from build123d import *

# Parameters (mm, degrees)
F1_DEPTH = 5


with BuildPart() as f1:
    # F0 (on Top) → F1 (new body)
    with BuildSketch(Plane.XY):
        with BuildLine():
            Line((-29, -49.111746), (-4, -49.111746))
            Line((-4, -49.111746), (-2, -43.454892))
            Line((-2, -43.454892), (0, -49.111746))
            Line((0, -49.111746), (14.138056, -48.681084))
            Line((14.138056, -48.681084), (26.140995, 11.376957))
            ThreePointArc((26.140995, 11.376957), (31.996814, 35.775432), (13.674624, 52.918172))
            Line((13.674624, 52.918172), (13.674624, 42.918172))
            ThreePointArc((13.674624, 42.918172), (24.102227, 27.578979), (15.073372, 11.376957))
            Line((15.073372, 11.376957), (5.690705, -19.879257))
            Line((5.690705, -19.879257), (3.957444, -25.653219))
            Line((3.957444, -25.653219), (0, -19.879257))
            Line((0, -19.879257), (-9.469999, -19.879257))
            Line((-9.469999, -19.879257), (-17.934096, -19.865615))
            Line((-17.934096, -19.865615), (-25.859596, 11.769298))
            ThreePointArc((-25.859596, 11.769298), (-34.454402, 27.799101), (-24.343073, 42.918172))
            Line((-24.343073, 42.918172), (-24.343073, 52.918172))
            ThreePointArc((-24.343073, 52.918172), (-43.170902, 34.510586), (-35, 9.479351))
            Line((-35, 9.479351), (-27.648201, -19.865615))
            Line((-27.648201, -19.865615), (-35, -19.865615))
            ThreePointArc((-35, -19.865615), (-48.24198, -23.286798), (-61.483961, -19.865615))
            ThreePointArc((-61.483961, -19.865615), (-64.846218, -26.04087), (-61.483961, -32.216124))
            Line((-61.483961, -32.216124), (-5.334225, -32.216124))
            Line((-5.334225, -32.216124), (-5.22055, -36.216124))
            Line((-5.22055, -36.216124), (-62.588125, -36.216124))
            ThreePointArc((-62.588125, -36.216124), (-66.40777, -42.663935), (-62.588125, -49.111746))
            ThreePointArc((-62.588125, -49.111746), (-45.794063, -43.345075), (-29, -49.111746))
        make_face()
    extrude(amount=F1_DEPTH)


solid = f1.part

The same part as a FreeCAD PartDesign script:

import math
import FreeCAD as App
import Part
import Sketcher
from FreeCAD import Vector

doc = App.newDocument("Part")
body = doc.addObject("PartDesign::Body", "Body")

sketch1 = body.newObject("Sketcher::SketchObject", "Sketch")
sketch1.AttachmentSupport = (doc.getObject("XY_Plane"), [""])
sketch1.MapMode = "FlatFace"
sketch1.addGeometry(Part.LineSegment(Vector(-29, -49.111746, 0), Vector(-4, -49.111746, 0)), False)
sketch1.addGeometry(Part.LineSegment(Vector(-4, -49.111746, 0), Vector(-2, -43.454892, 0)), False)
sketch1.addGeometry(Part.LineSegment(Vector(-2, -43.454892, 0), Vector(0, -49.111746, 0)), False)
sketch1.addGeometry(Part.LineSegment(Vector(0, -49.111746, 0), Vector(14.138056, -48.681084, 0)), False)
sketch1.addGeometry(Part.LineSegment(Vector(14.138056, -48.681084, 0), Vector(26.140995, 11.376957, 0)), False)
sketch1.addGeometry(Part.ArcOfCircle(Part.Circle(Vector(8.108902, 28.606754, 0), Vector(0, 0, 1), 24.940375), math.radians(-43.696602), math.radians(77.10523)), False)
sketch1.addGeometry(Part.LineSegment(Vector(13.674624, 52.918172, 0), Vector(13.674624, 42.918172, 0)), False)
sketch1.addGeometry(Part.ArcOfCircle(Part.Circle(Vector(6.455104, 26.796388, 0), Vector(0, 0, 1), 17.664467), math.radians(-60.798191), math.radians(65.876618)), False)
sketch1.addGeometry(Part.LineSegment(Vector(15.073372, 11.376957, 0), Vector(5.690705, -19.879257, 0)), False)
sketch1.addGeometry(Part.LineSegment(Vector(5.690705, -19.879257, 0), Vector(3.957444, -25.653219, 0)), False)
sketch1.addGeometry(Part.LineSegment(Vector(3.957444, -25.653219, 0), Vector(0, -19.879257, 0)), False)
sketch1.addGeometry(Part.LineSegment(Vector(0, -19.879257, 0), Vector(-9.469999, -19.879257, 0)), False)
sketch1.addGeometry(Part.LineSegment(Vector(-9.469999, -19.879257, 0), Vector(-17.934096, -19.865615, 0)), False)
sketch1.addGeometry(Part.LineSegment(Vector(-17.934096, -19.865615, 0), Vector(-25.859596, 11.769298, 0)), False)
sketch1.addGeometry(Part.ArcOfCircle(Part.Circle(Vector(-16.810834, 26.940101, 0), Vector(0, 0, 1), 17.664466), math.radians(115.239707), math.radians(239.185657)), False)
sketch1.addGeometry(Part.LineSegment(Vector(-24.343073, 42.918172, 0), Vector(-24.343073, 52.918172, 0)), False)
sketch1.addGeometry(Part.ArcOfCircle(Part.Circle(Vector(-18.948813, 28.568136, 0), Vector(0, 0, 1), 24.940375), math.radians(102.490999), math.radians(229.940527)), False)
sketch1.addGeometry(Part.LineSegment(Vector(-35, 9.479351, 0), Vector(-27.648201, -19.865615, 0)), False)
sketch1.addGeometry(Part.LineSegment(Vector(-27.648201, -19.865615, 0), Vector(-35, -19.865615, 0)), False)
sketch1.addGeometry(Part.ArcOfCircle(Part.Circle(Vector(-48.24198, 4.050901, 0), Vector(0, 0, 1), 27.337699), math.radians(-118.972209), math.radians(-61.027791)), False)
sketch1.addGeometry(Part.ArcOfCircle(Part.Circle(Vector(-57.494231, -26.040869, 0), Vector(0, 0, 1), 7.351987), math.radians(122.865836), math.radians(237.134164)), False)
sketch1.addGeometry(Part.LineSegment(Vector(-61.483961, -32.216124, 0), Vector(-5.334225, -32.216124, 0)), False)
sketch1.addGeometry(Part.LineSegment(Vector(-5.334225, -32.216124, 0), Vector(-5.22055, -36.216124, 0)), False)
sketch1.addGeometry(Part.LineSegment(Vector(-5.22055, -36.216124, 0), Vector(-62.588125, -36.216124, 0)), False)
sketch1.addGeometry(Part.ArcOfCircle(Part.Circle(Vector(-59.055784, -42.663935, 0), Vector(0, 0, 1), 7.351986), math.radians(118.715502), math.radians(241.284498)), False)
sketch1.addGeometry(Part.ArcOfCircle(Part.Circle(Vector(-45.794063, -70.682774, 0), Vector(0, 0, 1), 27.337699), math.radians(52.09756), math.radians(127.90244)), False)
sketch1.addConstraint(Sketcher.Constraint("Coincident", 0, 2, 1, 1))
sketch1.addConstraint(Sketcher.Constraint("Coincident", 1, 2, 2, 1))
sketch1.addConstraint(Sketcher.Constraint("Coincident", 2, 2, 3, 1))
sketch1.addConstraint(Sketcher.Constraint("Coincident", 3, 2, 4, 1))
sketch1.addConstraint(Sketcher.Constraint("Coincident", 4, 2, 5, 1))
sketch1.addConstraint(Sketcher.Constraint("Coincident", 5, 2, 6, 1))
sketch1.addConstraint(Sketcher.Constraint("Coincident", 6, 2, 7, 2))
sketch1.addConstraint(Sketcher.Constraint("Coincident", 7, 1, 8, 1))
sketch1.addConstraint(Sketcher.Constraint("Coincident", 8, 2, 9, 1))
sketch1.addConstraint(Sketcher.Constraint("Coincident", 9, 2, 10, 1))
sketch1.addConstraint(Sketcher.Constraint("Coincident", 10, 2, 11, 1))
sketch1.addConstraint(Sketcher.Constraint("Coincident", 11, 2, 12, 1))
sketch1.addConstraint(Sketcher.Constraint("Coincident", 12, 2, 13, 1))
sketch1.addConstraint(Sketcher.Constraint("Coincident", 13, 2, 14, 2))
sketch1.addConstraint(Sketcher.Constraint("Coincident", 14, 1, 15, 1))
sketch1.addConstraint(Sketcher.Constraint("Coincident", 15, 2, 16, 1))
sketch1.addConstraint(Sketcher.Constraint("Coincident", 16, 2, 17, 1))
sketch1.addConstraint(Sketcher.Constraint("Coincident", 17, 2, 18, 1))
sketch1.addConstraint(Sketcher.Constraint("Coincident", 18, 2, 19, 2))
sketch1.addConstraint(Sketcher.Constraint("Coincident", 19, 1, 20, 1))
sketch1.addConstraint(Sketcher.Constraint("Coincident", 20, 2, 21, 1))
sketch1.addConstraint(Sketcher.Constraint("Coincident", 21, 2, 22, 1))
sketch1.addConstraint(Sketcher.Constraint("Coincident", 22, 2, 23, 1))
sketch1.addConstraint(Sketcher.Constraint("Coincident", 23, 2, 24, 1))
sketch1.addConstraint(Sketcher.Constraint("Coincident", 24, 2, 25, 2))
sketch1.addConstraint(Sketcher.Constraint("Coincident", 25, 1, 0, 1))
sketch1.addConstraint(Sketcher.Constraint("Horizontal", 0))
sketch1.addConstraint(Sketcher.Constraint("Vertical", 6))
sketch1.addConstraint(Sketcher.Constraint("Horizontal", 11))
sketch1.addConstraint(Sketcher.Constraint("Vertical", 15))
sketch1.addConstraint(Sketcher.Constraint("Horizontal", 18))
sketch1.addConstraint(Sketcher.Constraint("Horizontal", 21))
sketch1.addConstraint(Sketcher.Constraint("Horizontal", 23))
sketch1.addConstraint(Sketcher.Constraint("PointOnObject", 2, 2, -2))
sketch1.addConstraint(Sketcher.Constraint("PointOnObject", 10, 2, -2))
sketch1.addConstraint(Sketcher.Constraint("DistanceX", 0, 1, 0, 2, 25.0))
sketch1.addConstraint(Sketcher.Constraint("DistanceY", 6, 2, 6, 1, 10.0))
sketch1.addConstraint(Sketcher.Constraint("DistanceY", 15, 1, 15, 2, 10.0))
sketch1.addConstraint(Sketcher.Constraint("Distance", 1, 6.0))
sketch1.addConstraint(Sketcher.Constraint("Distance", 2, 6.0))
sketch1.addConstraint(Sketcher.Constraint("Distance", 10, 7.0))
sketch1.addConstraint(Sketcher.Constraint("DistanceX", 0, 2, -1, 1, 4.0))
sketch1.addConstraint(Sketcher.Constraint("DistanceX", 1, 2, -1, 1, 2.0))
sketch1.addConstraint(Sketcher.Constraint("DistanceX", 16, 2, -1, 1, 35.0))
sketch1.addConstraint(Sketcher.Constraint("DistanceX", 18, 2, -1, 1, 35.0))
sketch1.addConstraint(Sketcher.Constraint("DistanceY", 6, 2, 15, 2, 10.0))
sketch1.addConstraint(Sketcher.Constraint("DistanceY", 22, 2, 21, 2, 4.0))
sketch1.addConstraint(Sketcher.Constraint("DistanceX", 11, 2, 11, 1, 9.469999))
sketch1.addConstraint(Sketcher.Constraint("Radius", 19, 27.337699))
sketch1.addConstraint(Sketcher.Constraint("Radius", 25, 27.337699))
sketch1.addConstraint(Sketcher.Constraint("DistanceX", 18, 2, 18, 1, 7.351799))
sketch1.addConstraint(Sketcher.Constraint("Radius", 5, 24.940375))
sketch1.addConstraint(Sketcher.Constraint("Radius", 7, 17.664467))
sketch1.addConstraint(Sketcher.Constraint("Radius", 14, 17.664466))
sketch1.addConstraint(Sketcher.Constraint("Radius", 16, 24.940375))
sketch1.addConstraint(Sketcher.Constraint("Radius", 20, 7.351987))
sketch1.addConstraint(Sketcher.Constraint("Radius", 24, 7.351986))
sketch1.addConstraint(Sketcher.Constraint("Distance", 9, 6.028502))
sketch1.addConstraint(Sketcher.Constraint("DistanceX", -1, 1, 5, 3, 8.108902))
sketch1.addConstraint(Sketcher.Constraint("DistanceY", -1, 1, 14, 3, 26.940101))
sketch1.addConstraint(Sketcher.Constraint("DistanceY", -1, 1, 19, 3, 4.050901))
sketch1.addConstraint(Sketcher.Constraint("DistanceX", 12, 2, 8, 2, 23.624801))
sketch1.addConstraint(Sketcher.Constraint("DistanceX", 13, 2, 12, 2, 7.9255))
sketch1.addConstraint(Sketcher.Constraint("DistanceX", 13, 2, 7, 3, 32.3147))
sketch1.addConstraint(Sketcher.Constraint("DistanceX", 21, 1, 21, 2, 56.149736))
sketch1.addConstraint(Sketcher.Constraint("DistanceX", 23, 2, 23, 1, 57.367575))
sketch1.addConstraint(Sketcher.Constraint("DistanceX", 19, 3, -1, 1, 48.24198))
sketch1.addConstraint(Sketcher.Constraint("DistanceX", 20, 3, -1, 1, 57.494231))
sketch1.addConstraint(Sketcher.Constraint("DistanceY", 20, 3, -1, 1, 26.040869))
sketch1.addConstraint(Sketcher.Constraint("DistanceY", -1, 1, 6, 2, 42.918172))
sketch1.addConstraint(Sketcher.Constraint("DistanceX", -1, 1, 7, 1, 15.073372))
sketch1.addConstraint(Sketcher.Constraint("DistanceY", 9, 2, -1, 1, 25.653219))
sketch1.addConstraint(Sketcher.Constraint("DistanceY", -1, 1, 16, 2, 9.479351))
sketch1.addConstraint(Sketcher.Constraint("DistanceX", 20, 2, -1, 1, 61.483961))
sketch1.addConstraint(Sketcher.Constraint("DistanceX", 22, 2, -1, 1, 5.22055))
sketch1.addConstraint(Sketcher.Constraint("DistanceX", 14, 3, 7, 3, 23.265939))
sketch1.addConstraint(Sketcher.Constraint("DistanceX", 16, 3, 14, 3, 2.137979))
sketch1.addConstraint(Sketcher.Constraint("DistanceY", 16, 3, 5, 3, 0.038618))
sketch1.addConstraint(Sketcher.Constraint("DistanceX", 24, 3, 14, 3, 42.24495))
sketch1.addConstraint(Sketcher.Constraint("DistanceX", 24, 3, 25, 3, 13.261721))
sketch1.addConstraint(Sketcher.Constraint("DistanceY", 25, 3, 24, 3, 28.018839))
sketch1.addConstraint(Sketcher.Constraint("DistanceY", 2, 2, 3, 2, 0.430662))
sketch1.addConstraint(Sketcher.Constraint("DistanceX", 25, 3, 3, 2, 59.932119))
sketch1.addConstraint(Sketcher.Constraint("DistanceX", 7, 3, 4, 2, 19.685891))
sketch1.addConstraint(Sketcher.Constraint("DistanceY", 2, 2, 8, 2, 29.232489))
sketch1.addConstraint(Sketcher.Constraint("Distance", 13, 32.612594))
pad1 = body.newObject("PartDesign::Pad", "Pad")
pad1.Profile = sketch1
pad1.Length = 5

doc.recompute()
